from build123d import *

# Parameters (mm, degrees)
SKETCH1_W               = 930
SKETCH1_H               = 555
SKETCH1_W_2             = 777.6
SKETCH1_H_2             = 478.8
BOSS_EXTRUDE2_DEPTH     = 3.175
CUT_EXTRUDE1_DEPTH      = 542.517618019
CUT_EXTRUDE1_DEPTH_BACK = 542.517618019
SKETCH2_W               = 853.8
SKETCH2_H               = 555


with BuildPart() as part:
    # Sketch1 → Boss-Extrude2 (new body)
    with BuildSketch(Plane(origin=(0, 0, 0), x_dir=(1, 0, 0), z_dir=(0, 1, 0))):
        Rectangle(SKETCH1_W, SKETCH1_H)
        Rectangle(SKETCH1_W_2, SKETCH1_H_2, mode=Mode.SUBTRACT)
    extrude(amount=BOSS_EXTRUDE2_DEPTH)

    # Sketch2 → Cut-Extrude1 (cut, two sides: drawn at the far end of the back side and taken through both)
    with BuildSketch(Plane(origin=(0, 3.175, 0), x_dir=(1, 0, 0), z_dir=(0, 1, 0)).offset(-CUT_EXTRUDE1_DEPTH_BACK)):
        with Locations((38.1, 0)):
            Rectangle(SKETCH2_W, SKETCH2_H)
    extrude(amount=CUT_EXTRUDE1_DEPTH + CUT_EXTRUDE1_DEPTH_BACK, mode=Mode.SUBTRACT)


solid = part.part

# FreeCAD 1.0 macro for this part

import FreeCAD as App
import Part
import Sketcher

V = App.Vector


def add_polygon(sketch, points):
    """Adds a closed chain of lines whose ends are joined by coincident constraints."""
    first, n = sketch.GeometryCount, len(points)
    for a, b in zip(points, points[1:] + points[:1]):
        sketch.addGeometry(Part.LineSegment(App.Vector(*a, 0), App.Vector(*b, 0)), False)
    for i in range(n):
        sketch.addConstraint(Sketcher.Constraint("Coincident", first + i, 2, first + (i + 1) % n, 1))

doc = App.newDocument("Part")
params = doc.addObject("Spreadsheet::Sheet", "Params")
for row, (alias, value) in enumerate([
    ("sketch1_width", "930 mm"),
    ("sketch1_height", "555 mm"),
    ("sketch1_width2", "777.6 mm"),
    ("sketch1_height2", "478.8 mm"),
    ("pad1_length", "3.175 mm"),
    ("sketch2_height", "555 mm"),
    ("sketch2_width", "853.8 mm"),
], start=1):
    params.set(f"A{row}", alias)
    params.set(f"B{row}", "=" + value)
    params.setAlias(f"B{row}", alias)

body = doc.addObject("PartDesign::Body", "Body")

# Sketch on XZ plane
sketch1 = body.newObject("Sketcher::SketchObject", "Sketch")
sketch1.AttachmentSupport = (doc.getObject("XZ_Plane"), [""])
sketch1.MapMode = "FlatFace"
add_polygon(sketch1, [(-465, -277.5), (-465, 277.5), (465, 277.5), (465, -277.5)])  # lines 0-3
add_polygon(sketch1, [(388.8, 239.4), (-388.8, 239.4), (-388.8, -239.4), (388.8, -239.4)])  # lines 4-7
sketch1.addConstraint([
    Sketcher.Constraint("Vertical", 0),
    Sketcher.Constraint("Horizontal", 1),
    Sketcher.Constraint("Vertical", 2),
    Sketcher.Constraint("Horizontal", 3),
    Sketcher.Constraint("Horizontal", 4),
    Sketcher.Constraint("Vertical", 5),
    Sketcher.Constraint("Horizontal", 6),
    Sketcher.Constraint("Vertical", 7),
    Sketcher.Constraint("Symmetric", 0, 2, 2, 2, -1, 1),
    Sketcher.Constraint("Symmetric", 4, 2, 6, 2, -1, 1),
    Sketcher.Constraint("DistanceX", 1, 1, 1, 2, 930.0),
    Sketcher.Constraint("DistanceY", 0, 1, 0, 2, 555.0),
    Sketcher.Constraint("DistanceX", 4, 2, 4, 1, 777.6),
    Sketcher.Constraint("DistanceY", 5, 2, 5, 1, 478.8),
])
sketch1.setExpression("Constraints[18]", "Params.sketch1_width")
sketch1.setExpression("Constraints[19]", "Params.sketch1_height")
sketch1.setExpression("Constraints[20]", "Params.sketch1_width2")
sketch1.setExpression("Constraints[21]", "Params.sketch1_height2")
pad1 = body.newObject("PartDesign::Pad", "Pad")
pad1.Profile = sketch1
pad1.setExpression("Length", "Params.pad1_length")
pad1.Reversed = True

# Sketch on XZ plane
sketch2 = body.newObject("Sketcher::SketchObject", "Sketch001")
sketch2.AttachmentSupport = (doc.getObject("XZ_Plane"), [""])
sketch2.MapMode = "FlatFace"
sketch2.AttachmentOffset = App.Placement(V(0, 0, -3.175), App.Rotation())
add_polygon(sketch2, [(-388.8, -277.5), (-388.8, 277.5), (465, 277.5), (465, -277.5)])  # lines 0-3
sketch2.addConstraint([
    Sketcher.Constraint("Vertical", 0),
    Sketcher.Constraint("Horizontal", 1),
    Sketcher.Constraint("Vertical", 2),
    Sketcher.Constraint("Horizontal", 3),
    Sketcher.Constraint("DistanceY", 0, 1, 0, 2, 555.0),
    Sketcher.Constraint("DistanceX", 1, 1, 1, 2, 853.8),
    Sketcher.Constraint("DistanceX", -1, 1, 1, 2, 465.0),
    Sketcher.Constraint("DistanceY", -1, 1, 0, 2, 277.5),
])
sketch2.setExpression("Constraints[8]", "Params.sketch2_height")
sketch2.setExpression("Constraints[9]", "Params.sketch2_width")
pocket1 = body.newObject("PartDesign::Pocket", "Pocket")
pocket1.Profile = sketch2
pocket1.Type = "ThroughAll"
pocket1.Midplane = True

doc.recompute()
